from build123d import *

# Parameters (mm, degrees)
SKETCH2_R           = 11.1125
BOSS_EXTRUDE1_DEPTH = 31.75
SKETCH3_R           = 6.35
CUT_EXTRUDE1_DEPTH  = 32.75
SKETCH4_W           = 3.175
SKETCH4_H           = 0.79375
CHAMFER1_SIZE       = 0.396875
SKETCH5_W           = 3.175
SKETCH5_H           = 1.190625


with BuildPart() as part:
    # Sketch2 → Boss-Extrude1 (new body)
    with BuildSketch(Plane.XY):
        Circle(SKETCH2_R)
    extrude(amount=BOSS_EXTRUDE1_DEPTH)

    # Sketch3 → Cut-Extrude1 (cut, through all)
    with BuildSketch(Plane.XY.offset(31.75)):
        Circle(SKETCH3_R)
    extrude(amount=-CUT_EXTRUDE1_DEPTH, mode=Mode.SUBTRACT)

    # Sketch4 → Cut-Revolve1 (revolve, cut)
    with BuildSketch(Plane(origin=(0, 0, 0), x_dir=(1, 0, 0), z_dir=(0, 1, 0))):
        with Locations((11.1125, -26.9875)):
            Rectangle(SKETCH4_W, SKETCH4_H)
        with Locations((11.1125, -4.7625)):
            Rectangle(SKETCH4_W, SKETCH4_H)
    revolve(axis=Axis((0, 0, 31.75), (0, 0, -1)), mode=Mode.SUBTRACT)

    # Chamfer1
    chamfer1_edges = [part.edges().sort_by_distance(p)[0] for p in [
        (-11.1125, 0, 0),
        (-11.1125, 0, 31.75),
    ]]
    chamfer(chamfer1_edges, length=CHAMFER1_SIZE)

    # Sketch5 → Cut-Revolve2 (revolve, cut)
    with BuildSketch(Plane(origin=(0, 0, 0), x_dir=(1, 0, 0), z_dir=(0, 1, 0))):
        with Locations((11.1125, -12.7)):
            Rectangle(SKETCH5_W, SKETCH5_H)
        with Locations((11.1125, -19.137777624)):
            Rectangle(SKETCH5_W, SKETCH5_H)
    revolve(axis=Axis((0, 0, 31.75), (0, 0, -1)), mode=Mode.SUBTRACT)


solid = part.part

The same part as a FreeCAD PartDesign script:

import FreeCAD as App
import Part
import Sketcher

V = App.Vector
Q = App.Units.Quantity


def edges_at(feature, points):
    """Names of the edges that pass closest to the given points."""
    edges = feature.Shape.Edges
    near = lambda p: min(range(len(edges)), key=lambda i: edges[i].distToShape(Part.Vertex(*p))[0])
    return sorted({f"Edge{near(p) + 1}" for p in points})

doc = App.newDocument("Part")
body = doc.addObject("PartDesign::Body", "Body")

# Sketch on XY plane
sketch1 = body.newObject("Sketcher::SketchObject", "Sketch")
sketch1.AttachmentSupport = (doc.getObject("XY_Plane"), [""])
sketch1.MapMode = "FlatFace"
sketch1.addGeometry(Part.Circle(V(0, 0, 0), V(0, 0, 1), 11), False)
sketch1.addConstraint([
    Sketcher.Constraint("Coincident", 0, 3, -1, 1),
    Sketcher.Constraint("Diameter", 0, Q("0.875 in")),
])
pad1 = body.newObject("PartDesign::Pad", "Pad")
pad1.Profile = sketch1
pad1.Length = Q("1.25 in")

# Sketch on XY plane
sketch2 = body.newObject("Sketcher::SketchObject", "Sketch001")
sketch2.AttachmentSupport = (doc.getObject("XY_Plane"), [""])
sketch2.MapMode = "FlatFace"
sketch2.AttachmentOffset = App.Placement(V(0, 0, 1.25 * 25.4), App.Rotation())
sketch2.addGeometry(Part.Circle(V(0, 0, 0), V(0, 0, 1), 6), False)
sketch2.addConstraint([
    Sketcher.Constraint("Coincident", 0, 3, -1, 1),
    Sketcher.Constraint("Diameter", 0, Q("0.5 in")),
])
pocket1 = body.newObject("PartDesign::Pocket", "Pocket")
pocket1.Profile = sketch2
pocket1.Type = "ThroughAll"

# Sketch on XZ plane
sketch3 = body.newObject("Sketcher::SketchObject", "Sketch002")
sketch3.AttachmentSupport = (doc.getObject("XZ_Plane"), [""])
sketch3.MapMode = "FlatFace"
sketch3.addGeometry([
    Part.LineSegment(V(9.5, 26.6, 0), V(9.5, 27.4, 0)),  # 0
    Part.LineSegment(V(9.5, 27.4, 0), V(12.7, 27.4, 0)),  # 1
    Part.LineSegment(V(12.7, 27.4, 0), V(12.7, 26.6, 0)),  # 2
    Part.LineSegment(V(12.7, 26.6, 0), V(9.5, 26.6, 0)),  # 3
    Part.LineSegment(V(9.5, 4.4, 0), V(9.5, 5.2, 0)),  # 4
    Part.LineSegment(V(9.5, 5.2, 0), V(12.7, 5.2, 0)),  # 5
    Part.LineSegment(V(12.7, 5.2, 0), V(12.7, 4.4, 0)),  # 6
    Part.LineSegment(V(12.7, 4.4, 0), V(9.5, 4.4, 0)),  # 7
], False)
sketch3.addConstraint([
    Sketcher.Constraint("Coincident", 0, 2, 1, 1),
    Sketcher.Constraint("Coincident", 1, 2, 2, 1),
    Sketcher.Constraint("Coincident", 2, 2, 3, 1),
    Sketcher.Constraint("Coincident", 3, 2, 0, 1),
    Sketcher.Constraint("Coincident", 4, 2, 5, 1),
    Sketcher.Constraint("Coincident", 5, 2, 6, 1),
    Sketcher.Constraint("Coincident", 6, 2, 7, 1),
    Sketcher.Constraint("Coincident", 7, 2, 4, 1),
    Sketcher.Constraint("Vertical", 0),
    Sketcher.Constraint("Horizontal", 1),
    Sketcher.Constraint("Vertical", 2),
    Sketcher.Constraint("Horizontal", 3),
    Sketcher.Constraint("Vertical", 4),
    Sketcher.Constraint("Horizontal", 5),
    Sketcher.Constraint("Vertical", 6),
    Sketcher.Constraint("Horizontal", 7),
    Sketcher.Constraint("Vertical", 3, 2, 4, 2),
    Sketcher.Constraint("Vertical", 2, 2, 5, 2),
    Sketcher.Constraint("Equal", 2, 4),
    Sketcher.Constraint("DistanceX", -1, 1, 1, 2, Q("0.5 in")),
    Sketcher.Constraint("DistanceX", 1, 1, 1, 2, Q("0.125 in")),
    Sketcher.Constraint("DistanceY", 0, 1, 0, 2, Q("0.03125 in")),
    Sketcher.Constraint("DistanceY", -1, 1, 0, 2, Q("1.078125 in")),
    Sketcher.Constraint("DistanceY", -1, 1, 4, 2, Q("0.203125 in")),
])
groove = body.newObject("PartDesign::Groove", "Groove")
groove.Profile = sketch3
groove.ReferenceAxis = (sketch3, ["V_Axis"])
groove.Angle = 360
doc.recompute()

chamfer = body.newObject("PartDesign::Chamfer", "Chamfer")
chamfer.Base = (groove, edges_at(groove, [(-11.113, 0, 0), (-11.113, 0, 31.75)]))
chamfer.Size = Q("0.015625 in")

# Sketch on XZ plane
sketch4 = body.newObject("Sketcher::SketchObject", "Sketch003")
sketch4.AttachmentSupport = (doc.getObject("XZ_Plane"), [""])
sketch4.MapMode = "FlatFace"
sketch4.addGeometry([
    Part.LineSegment(V(9.5, 12.1, 0), V(9.5, 13.3, 0)),  # 0
    Part.LineSegment(V(9.5, 13.3, 0), V(12.7, 13.3, 0)),  # 1
    Part.LineSegment(V(12.7, 13.3, 0), V(12.7, 12.1, 0)),  # 2
    Part.LineSegment(V(12.7, 12.1, 0), V(9.5, 12.1, 0)),  # 3
    Part.LineSegment(V(9.5, 18.5, 0), V(9.5, 19.7, 0)),  # 4
    Part.LineSegment(V(9.5, 19.7, 0), V(12.7, 19.7, 0)),  # 5
    Part.LineSegment(V(12.7, 19.7, 0), V(12.7, 18.5, 0)),  # 6
    Part.LineSegment(V(12.7, 18.5, 0), V(9.5, 18.5, 0)),  # 7
], False)
sketch4.addConstraint([
    Sketcher.Constraint("Coincident", 0, 2, 1, 1),
    Sketcher.Constraint("Coincident", 1, 2, 2, 1),
    Sketcher.Constraint("Coincident", 2, 2, 3, 1),
    Sketcher.Constraint("Coincident", 3, 2, 0, 1),
    Sketcher.Constraint("Coincident", 4, 2, 5, 1),
    Sketcher.Constraint("Coincident", 5, 2, 6, 1),
    Sketcher.Constraint("Coincident", 6, 2, 7, 1),
    Sketcher.Constraint("Coincident", 7, 2, 4, 1),
    Sketcher.Constraint("Vertical", 0),
    Sketcher.Constraint("Horizontal", 1),
    Sketcher.Constraint("Vertical", 2),
    Sketcher.Constraint("Horizontal", 3),
    Sketcher.Constraint("Vertical", 4),
    Sketcher.Constraint("Horizontal", 5),
    Sketcher.Constraint("Vertical", 6),
    Sketcher.Constraint("Horizontal", 7),
    Sketcher.Constraint("Vertical", 3, 2, 4, 2),
    Sketcher.Constraint("Vertical", 2, 2, 5, 2),
    Sketcher.Constraint("Equal", 2, 4),
    Sketcher.Constraint("DistanceX", -1, 1, 1, 2, Q("0.5 in")),
    Sketcher.Constraint("DistanceX", 1, 1, 1, 2, Q("0.125 in")),
    Sketcher.Constraint("DistanceY", 0, 1, 0, 2, Q("0.046875 in")),
    Sketcher.Constraint("DistanceY", -1, 1, 4, 2, Q("19.73309 mm")),
    Sketcher.Constraint("DistanceY", -1, 1, 0, 2, Q("13.295312 mm")),
])
groove2 = body.newObject("PartDesign::Groove", "Groove001")
groove2.Profile = sketch4
groove2.ReferenceAxis = (sketch4, ["V_Axis"])
groove2.Angle = 360

doc.recompute()
